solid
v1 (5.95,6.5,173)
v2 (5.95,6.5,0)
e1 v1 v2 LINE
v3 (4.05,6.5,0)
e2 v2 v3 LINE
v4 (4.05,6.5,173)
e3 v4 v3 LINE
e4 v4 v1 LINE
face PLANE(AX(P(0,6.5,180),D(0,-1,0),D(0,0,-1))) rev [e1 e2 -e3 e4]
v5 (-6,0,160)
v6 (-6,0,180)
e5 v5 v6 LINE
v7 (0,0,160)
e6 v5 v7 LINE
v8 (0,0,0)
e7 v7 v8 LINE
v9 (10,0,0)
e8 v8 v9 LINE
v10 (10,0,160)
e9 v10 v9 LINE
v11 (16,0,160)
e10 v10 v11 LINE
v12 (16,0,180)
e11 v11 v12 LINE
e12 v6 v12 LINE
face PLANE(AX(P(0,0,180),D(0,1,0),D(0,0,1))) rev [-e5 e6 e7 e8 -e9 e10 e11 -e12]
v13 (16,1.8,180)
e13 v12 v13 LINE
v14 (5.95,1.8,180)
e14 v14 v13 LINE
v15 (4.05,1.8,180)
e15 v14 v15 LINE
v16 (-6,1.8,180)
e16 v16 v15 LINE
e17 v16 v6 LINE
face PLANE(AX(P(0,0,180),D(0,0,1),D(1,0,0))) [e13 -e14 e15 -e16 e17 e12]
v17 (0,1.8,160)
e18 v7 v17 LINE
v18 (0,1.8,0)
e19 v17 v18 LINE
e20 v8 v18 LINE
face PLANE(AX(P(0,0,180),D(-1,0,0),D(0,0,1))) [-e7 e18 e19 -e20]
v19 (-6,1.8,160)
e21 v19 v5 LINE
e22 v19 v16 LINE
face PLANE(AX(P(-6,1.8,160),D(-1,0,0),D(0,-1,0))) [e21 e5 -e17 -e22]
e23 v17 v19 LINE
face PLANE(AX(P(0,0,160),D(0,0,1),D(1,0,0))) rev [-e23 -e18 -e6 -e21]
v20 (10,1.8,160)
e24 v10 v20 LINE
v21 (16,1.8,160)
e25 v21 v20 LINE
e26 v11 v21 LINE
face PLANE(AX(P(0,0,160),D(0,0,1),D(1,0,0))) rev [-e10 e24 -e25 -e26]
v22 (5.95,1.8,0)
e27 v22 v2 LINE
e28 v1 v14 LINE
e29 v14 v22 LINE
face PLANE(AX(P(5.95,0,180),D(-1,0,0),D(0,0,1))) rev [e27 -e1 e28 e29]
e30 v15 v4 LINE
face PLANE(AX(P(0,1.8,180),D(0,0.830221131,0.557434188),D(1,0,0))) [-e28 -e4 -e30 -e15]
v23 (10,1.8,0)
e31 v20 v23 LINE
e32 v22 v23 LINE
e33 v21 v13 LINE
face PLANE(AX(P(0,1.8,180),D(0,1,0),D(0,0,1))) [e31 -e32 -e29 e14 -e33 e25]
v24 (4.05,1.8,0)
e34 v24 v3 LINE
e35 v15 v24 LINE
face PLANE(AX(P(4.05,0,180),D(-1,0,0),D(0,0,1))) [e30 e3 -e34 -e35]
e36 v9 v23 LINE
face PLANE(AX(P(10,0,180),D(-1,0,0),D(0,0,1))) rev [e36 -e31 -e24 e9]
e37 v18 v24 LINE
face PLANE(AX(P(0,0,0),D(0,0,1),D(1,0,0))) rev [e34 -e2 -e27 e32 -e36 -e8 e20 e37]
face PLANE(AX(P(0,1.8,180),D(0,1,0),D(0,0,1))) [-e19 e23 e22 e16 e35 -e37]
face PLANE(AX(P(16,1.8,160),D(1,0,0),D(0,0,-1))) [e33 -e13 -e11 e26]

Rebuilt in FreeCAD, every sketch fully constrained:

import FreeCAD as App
import Part
import Sketcher


def edges_at(feature, points):
    """Names of the edges that pass closest to the given points."""
    edges = feature.Shape.Edges
    near = lambda p: min(range(len(edges)), key=lambda i: edges[i].distToShape(Part.Vertex(*p))[0])
    return sorted({f"Edge{near(p) + 1}" for p in points})


def add_polygon(sketch, points):
    """Adds a closed chain of lines whose ends are joined by coincident constraints."""
    first, n = sketch.GeometryCount, len(points)
    for a, b in zip(points, points[1:] + points[:1]):
        sketch.addGeometry(Part.LineSegment(App.Vector(*a, 0), App.Vector(*b, 0)), False)
    for i in range(n):
        sketch.addConstraint(Sketcher.Constraint("Coincident", first + i, 2, first + (i + 1) % n, 1))

doc = App.newDocument("Part")
body = doc.addObject("PartDesign::Body", "Body")

sketch1 = doc.addObject("Sketcher::SketchObject", "Sketch")
body.addObject(sketch1)
sketch1.AttachmentSupport = (doc.XY_Plane, [""])
sketch1.MapMode = "FlatFace"
add_polygon(sketch1, [(0, 1.8), (0, 0), (10, 0), (10, 1.8), (5.95, 1.8), (5.95, 6.5), (4.05, 6.5), (4.05, 1.8)])
sketch1.addConstraint([
    Sketcher.Constraint("Vertical", 0),
    Sketcher.Constraint("Horizontal", 1),
    Sketcher.Constraint("Vertical", 2),
    Sketcher.Constraint("Horizontal", 3),
    Sketcher.Constraint("Vertical", 4),
    Sketcher.Constraint("Horizontal", 5),
    Sketcher.Constraint("Vertical", 6),
    Sketcher.Constraint("Horizontal", 7),
    Sketcher.Constraint("Coincident", 0, 2, -1, 1),
    Sketcher.Constraint("Horizontal", 3, 2, 6, 2),
    Sketcher.Constraint("Equal", 3, 7),
    Sketcher.Constraint("DistanceX", 1, 1, 1, 2, 10.0),
    Sketcher.Constraint("DistanceX", 5, 2, 5, 1, 1.9),
    Sketcher.Constraint("DistanceY", 0, 2, 0, 1, 1.8),
    Sketcher.Constraint("DistanceY", 4, 1, 4, 2, 4.7),
])
pad1 = doc.addObject("PartDesign::Pad", "Pad")
body.addObject(pad1)
pad1.Profile = sketch1
pad1.Length = 180

sketch2 = doc.addObject("Sketcher::SketchObject", "Sketch001")
body.addObject(sketch2)
sketch2.AttachmentSupport = (doc.XY_Plane, [""])
sketch2.MapMode = "FlatFace"
sketch2.AttachmentOffset = App.Placement(App.Vector(0, 0, 180), App.Rotation())
add_polygon(sketch2, [(-6, 1.8), (-6, 0), (16, 0), (16, 1.8)])
sketch2.addConstraint([
    Sketcher.Constraint("Vertical", 0),
    Sketcher.Constraint("Horizontal", 1),
    Sketcher.Constraint("Vertical", 2),
    Sketcher.Constraint("Horizontal", 3),
    Sketcher.Constraint("PointOnObject", 0, 2, -1),
    Sketcher.Constraint("DistanceX", 1, 1, 1, 2, 22.0),
    Sketcher.Constraint("DistanceY", 0, 2, 0, 1, 1.8),
    Sketcher.Constraint("DistanceX", 0, 2, -1, 1, 6.0),
])
pad2 = doc.addObject("PartDesign::Pad", "Pad001")
body.addObject(pad2)
pad2.Profile = sketch2
pad2.Length = 20
pad2.Reversed = True
doc.recompute()

chamfer = doc.addObject("PartDesign::Chamfer", "Chamfer")
body.addObject(chamfer)
chamfer.Base = (pad2, edges_at(pad2, [(5, 6.5, 180)]))
chamfer.ChamferType = "Two distances"
chamfer.Size = 7
chamfer.Size2 = 4.7

doc.recompute()
